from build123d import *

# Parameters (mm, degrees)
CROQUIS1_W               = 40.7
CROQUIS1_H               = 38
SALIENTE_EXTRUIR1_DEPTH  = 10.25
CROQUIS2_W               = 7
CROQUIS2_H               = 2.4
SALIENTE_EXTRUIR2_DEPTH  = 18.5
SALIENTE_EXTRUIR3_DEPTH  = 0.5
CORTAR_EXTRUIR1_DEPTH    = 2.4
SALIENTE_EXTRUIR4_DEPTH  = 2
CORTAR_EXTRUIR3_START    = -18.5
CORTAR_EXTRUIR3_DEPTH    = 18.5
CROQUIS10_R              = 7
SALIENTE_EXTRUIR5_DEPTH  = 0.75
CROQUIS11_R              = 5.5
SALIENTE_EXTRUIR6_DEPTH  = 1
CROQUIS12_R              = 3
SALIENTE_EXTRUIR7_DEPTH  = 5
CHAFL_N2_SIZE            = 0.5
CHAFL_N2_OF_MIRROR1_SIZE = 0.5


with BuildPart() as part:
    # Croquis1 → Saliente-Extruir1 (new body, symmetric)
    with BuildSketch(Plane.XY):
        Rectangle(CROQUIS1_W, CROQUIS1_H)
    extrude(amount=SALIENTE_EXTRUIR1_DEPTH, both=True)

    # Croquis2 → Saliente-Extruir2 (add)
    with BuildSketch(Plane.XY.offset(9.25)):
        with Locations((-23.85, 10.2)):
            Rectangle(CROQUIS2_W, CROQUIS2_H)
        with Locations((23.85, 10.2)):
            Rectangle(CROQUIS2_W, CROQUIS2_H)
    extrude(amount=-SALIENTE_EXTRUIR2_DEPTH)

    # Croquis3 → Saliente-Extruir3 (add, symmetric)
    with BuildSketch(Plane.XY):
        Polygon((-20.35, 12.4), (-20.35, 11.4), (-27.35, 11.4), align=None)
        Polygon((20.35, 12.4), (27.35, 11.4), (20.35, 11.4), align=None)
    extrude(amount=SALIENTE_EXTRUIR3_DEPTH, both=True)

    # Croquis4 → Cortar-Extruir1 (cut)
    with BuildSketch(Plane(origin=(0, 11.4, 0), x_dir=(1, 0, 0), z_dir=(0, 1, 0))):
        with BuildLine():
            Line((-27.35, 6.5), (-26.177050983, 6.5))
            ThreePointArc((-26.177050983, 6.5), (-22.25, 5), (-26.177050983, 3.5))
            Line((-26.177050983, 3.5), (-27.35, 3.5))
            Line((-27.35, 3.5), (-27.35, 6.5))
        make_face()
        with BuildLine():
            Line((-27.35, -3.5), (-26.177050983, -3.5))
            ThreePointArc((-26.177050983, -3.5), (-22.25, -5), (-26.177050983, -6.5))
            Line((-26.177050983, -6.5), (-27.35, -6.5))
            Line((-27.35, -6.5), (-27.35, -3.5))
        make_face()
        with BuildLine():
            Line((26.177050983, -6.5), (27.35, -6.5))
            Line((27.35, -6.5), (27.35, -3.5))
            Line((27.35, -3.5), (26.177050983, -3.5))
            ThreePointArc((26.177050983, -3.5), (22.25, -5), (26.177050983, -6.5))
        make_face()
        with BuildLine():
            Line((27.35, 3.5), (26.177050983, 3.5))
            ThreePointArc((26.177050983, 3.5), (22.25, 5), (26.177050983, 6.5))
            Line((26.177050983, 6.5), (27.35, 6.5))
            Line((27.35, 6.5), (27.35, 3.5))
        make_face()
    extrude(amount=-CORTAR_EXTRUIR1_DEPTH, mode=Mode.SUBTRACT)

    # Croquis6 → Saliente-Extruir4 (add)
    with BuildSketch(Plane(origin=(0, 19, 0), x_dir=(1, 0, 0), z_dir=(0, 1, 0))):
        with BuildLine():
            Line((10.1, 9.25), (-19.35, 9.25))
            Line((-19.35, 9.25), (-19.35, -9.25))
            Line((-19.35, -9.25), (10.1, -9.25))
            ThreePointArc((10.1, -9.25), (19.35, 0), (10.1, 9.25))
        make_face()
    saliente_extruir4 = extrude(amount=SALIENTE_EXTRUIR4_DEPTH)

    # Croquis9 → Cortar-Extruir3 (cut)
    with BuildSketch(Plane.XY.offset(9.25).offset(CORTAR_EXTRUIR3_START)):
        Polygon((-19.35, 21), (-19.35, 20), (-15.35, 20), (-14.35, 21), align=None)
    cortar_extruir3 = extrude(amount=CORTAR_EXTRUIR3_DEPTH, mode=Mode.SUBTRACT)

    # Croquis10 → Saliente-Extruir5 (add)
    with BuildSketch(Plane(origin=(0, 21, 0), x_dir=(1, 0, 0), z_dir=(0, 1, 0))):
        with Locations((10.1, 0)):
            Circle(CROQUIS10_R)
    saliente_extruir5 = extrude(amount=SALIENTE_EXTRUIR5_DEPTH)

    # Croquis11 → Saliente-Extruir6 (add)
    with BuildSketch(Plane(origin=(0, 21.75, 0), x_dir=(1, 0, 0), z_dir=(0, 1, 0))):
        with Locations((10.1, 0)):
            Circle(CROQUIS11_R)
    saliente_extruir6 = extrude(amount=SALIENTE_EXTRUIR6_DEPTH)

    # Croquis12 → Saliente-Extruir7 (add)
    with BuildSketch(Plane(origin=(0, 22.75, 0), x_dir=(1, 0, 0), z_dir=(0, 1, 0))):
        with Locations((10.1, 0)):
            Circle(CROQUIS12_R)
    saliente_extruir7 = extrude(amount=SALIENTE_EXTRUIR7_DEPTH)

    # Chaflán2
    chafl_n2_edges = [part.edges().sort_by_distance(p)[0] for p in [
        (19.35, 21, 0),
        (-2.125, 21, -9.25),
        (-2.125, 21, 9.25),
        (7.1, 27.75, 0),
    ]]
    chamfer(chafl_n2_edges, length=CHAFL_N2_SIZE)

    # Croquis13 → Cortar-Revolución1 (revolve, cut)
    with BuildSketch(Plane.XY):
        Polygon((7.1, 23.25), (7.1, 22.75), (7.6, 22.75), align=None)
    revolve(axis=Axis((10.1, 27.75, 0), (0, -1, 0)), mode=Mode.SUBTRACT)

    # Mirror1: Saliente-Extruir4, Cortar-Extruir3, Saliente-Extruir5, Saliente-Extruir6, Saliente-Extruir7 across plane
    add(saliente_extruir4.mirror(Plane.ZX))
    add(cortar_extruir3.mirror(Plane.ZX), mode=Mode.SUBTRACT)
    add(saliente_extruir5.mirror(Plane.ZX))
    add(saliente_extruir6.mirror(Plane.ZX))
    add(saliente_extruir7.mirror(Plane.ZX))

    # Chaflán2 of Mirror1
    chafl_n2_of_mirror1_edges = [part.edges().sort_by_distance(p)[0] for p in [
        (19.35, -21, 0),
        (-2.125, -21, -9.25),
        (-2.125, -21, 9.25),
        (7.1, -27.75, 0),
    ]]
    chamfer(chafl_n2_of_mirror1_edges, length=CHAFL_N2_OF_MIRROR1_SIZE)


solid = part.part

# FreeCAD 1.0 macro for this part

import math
import FreeCAD as App
import Part
import Sketcher

V = App.Vector


def edges_at(feature, points):
    """Names of the edges that pass closest to the given points."""
    edges = feature.Shape.Edges
    near = lambda p: min(range(len(edges)), key=lambda i: edges[i].distToShape(Part.Vertex(*p))[0])
    return sorted({f"Edge{near(p) + 1}" for p in points})

doc = App.newDocument("Part")
body = doc.addObject("PartDesign::Body", "Body")

# Sketch on XY plane
sketch1 = doc.addObject("Sketcher::SketchObject", "Sketch")
body.addObject(sketch1)
sketch1.AttachmentSupport = (doc.XY_Plane, [""])
sketch1.MapMode = "FlatFace"
sketch1.addGeometry([
    Part.LineSegment(V(-20, 19, 0), V(-20, -19, 0)),
    Part.LineSegment(V(-20, -19, 0), V(20, -19, 0)),
    Part.LineSegment(V(20, -19, 0), V(20, 19, 0)),
    Part.LineSegment(V(20, 19, 0), V(-20, 19, 0)),
], False)
sketch1.addConstraint([
    Sketcher.Constraint("Coincident", 0, 2, 1, 1),
    Sketcher.Constraint("Coincident", 1, 2, 2, 1),
    Sketcher.Constraint("Coincident", 2, 2, 3, 1),
    Sketcher.Constraint("Coincident", 3, 2, 0, 1),
    Sketcher.Constraint("Vertical", 0),
    Sketcher.Constraint("Horizontal", 1),
    Sketcher.Constraint("Vertical", 2),
    Sketcher.Constraint("Horizontal", 3),
    Sketcher.Constraint("Symmetric", 0, 2, 2, 2, -1, 1),
    Sketcher.Constraint("DistanceY", 0, 2, 0, 1, 38.0),
    Sketcher.Constraint("DistanceX", 1, 1, 1, 2, 40.7),
])
pad1 = doc.addObject("PartDesign::Pad", "Pad")
body.addObject(pad1)
pad1.Profile = sketch1
pad1.Length = 20.5
pad1.Midplane = True

# Sketch on XY plane
sketch2 = doc.addObject("Sketcher::SketchObject", "Sketch001")
body.addObject(sketch2)
sketch2.AttachmentSupport = (doc.XY_Plane, [""])
sketch2.MapMode = "FlatFace"
sketch2.AttachmentOffset = App.Placement(V(0, 0, 9.25), App.Rotation())
sketch2.addGeometry([
    Part.LineSegment(V(-27.4, 11.4, 0), V(-27.4, 9, 0)),  # 0
    Part.LineSegment(V(-27.4, 9, 0), V(-20.4, 9, 0)),  # 1
    Part.LineSegment(V(-20.4, 9, 0), V(-20.4, 11.4, 0)),  # 2
    Part.LineSegment(V(-20.4, 11.4, 0), V(-27.4, 11.4, 0)),  # 3
    Part.LineSegment(V(20.4, 11.4, 0), V(20.4, 9, 0)),  # 4
    Part.LineSegment(V(20.4, 9, 0), V(27.4, 9, 0)),  # 5
    Part.LineSegment(V(27.4, 9, 0), V(27.4, 11.4, 0)),  # 6
    Part.LineSegment(V(27.4, 11.4, 0), V(20.4, 11.4, 0)),  # 7
], False)
sketch2.addConstraint([
    Sketcher.Constraint("Coincident", 0, 2, 1, 1),
    Sketcher.Constraint("Coincident", 1, 2, 2, 1),
    Sketcher.Constraint("Coincident", 2, 2, 3, 1),
    Sketcher.Constraint("Coincident", 3, 2, 0, 1),
    Sketcher.Constraint("Coincident", 4, 2, 5, 1),
    Sketcher.Constraint("Coincident", 5, 2, 6, 1),
    Sketcher.Constraint("Coincident", 6, 2, 7, 1),
    Sketcher.Constraint("Coincident", 7, 2, 4, 1),
    Sketcher.Constraint("Vertical", 0),
    Sketcher.Constraint("Horizontal", 1),
    Sketcher.Constraint("Vertical", 2),
    Sketcher.Constraint("Horizontal", 3),
    Sketcher.Constraint("Vertical", 4),
    Sketcher.Constraint("Horizontal", 5),
    Sketcher.Constraint("Vertical", 6),
    Sketcher.Constraint("Horizontal", 7),
    Sketcher.Constraint("Symmetric", 1, 2, 4, 2, -2),
    Sketcher.Constraint("Symmetric", 3, 2, 6, 2, -2),
    Sketcher.Constraint("DistanceX", 1, 1, 1, 2, 7.0),
    Sketcher.Constraint("DistanceY", 0, 2, 0, 1, 2.4),
    Sketcher.Constraint("DistanceY", -1, 1, 0, 2, 9.0),
    Sketcher.Constraint("DistanceX", 1, 2, 4, 2, 40.7),
])
pad2 = doc.addObject("PartDesign::Pad", "Pad001")
body.addObject(pad2)
pad2.Profile = sketch2
pad2.Length = 18.5
pad2.Reversed = True

# Sketch on XY plane
sketch3 = doc.addObject("Sketcher::SketchObject", "Sketch002")
body.addObject(sketch3)
sketch3.AttachmentSupport = (doc.XY_Plane, [""])
sketch3.MapMode = "FlatFace"
sketch3.addGeometry([
    Part.LineSegment(V(-20.4, 11.4, 0), V(-20.4, 12.4, 0)),  # 0
    Part.LineSegment(V(-20.4, 12.4, 0), V(-27.4, 11.4, 0)),  # 1
    Part.LineSegment(V(-27.4, 11.4, 0), V(-20.4, 11.4, 0)),  # 2
    Part.LineSegment(V(27.4, 11.4, 0), V(20.4, 12.4, 0)),  # 3
    Part.LineSegment(V(20.4, 12.4, 0), V(20.4, 11.4, 0)),  # 4
    Part.LineSegment(V(20.4, 11.4, 0), V(27.4, 11.4, 0)),  # 5
], False)
sketch3.addConstraint([
    Sketcher.Constraint("Coincident", 0, 2, 1, 1),
    Sketcher.Constraint("Coincident", 1, 2, 2, 1),
    Sketcher.Constraint("Coincident", 2, 2, 0, 1),
    Sketcher.Constraint("Coincident", 3, 2, 4, 1),
    Sketcher.Constraint("Coincident", 4, 2, 5, 1),
    Sketcher.Constraint("Coincident", 5, 2, 3, 1),
    Sketcher.Constraint("Vertical", 0),
    Sketcher.Constraint("Horizontal", 2),
    Sketcher.Constraint("Vertical", 4),
    Sketcher.Constraint("Horizontal", 5),
    Sketcher.Constraint("Symmetric", 0, 2, 3, 2, -2),
    Sketcher.Constraint("Symmetric", 1, 2, 5, 2, -2),
    Sketcher.Constraint("DistanceX", 2, 1, 2, 2, 7.0),
    Sketcher.Constraint("DistanceY", 0, 1, 0, 2, 1.0),
    Sketcher.Constraint("DistanceY", -1, 1, 0, 2, 12.4),
    Sketcher.Constraint("DistanceX", 0, 2, 3, 2, 40.7),
])
pad3 = doc.addObject("PartDesign::Pad", "Pad002")
body.addObject(pad3)
pad3.Profile = sketch3
pad3.Length = 1
pad3.Midplane = True

# Sketch on XZ plane
sketch4 = doc.addObject("Sketcher::SketchObject", "Sketch003")
body.addObject(sketch4)
sketch4.AttachmentSupport = (doc.XZ_Plane, [""])
sketch4.MapMode = "FlatFace"
sketch4.AttachmentOffset = App.Placement(V(0, 0, -11.4), App.Rotation())
sketch4.addGeometry([
    Part.LineSegment(V(-26.2, -6.5, 0), V(-27.4, -6.5, 0)),  # 0
    Part.LineSegment(V(-27.4, -6.5, 0), V(-27.4, -3.5, 0)),  # 1
    Part.LineSegment(V(-27.4, -3.5, 0), V(-26.2, -3.5, 0)),  # 2
    Part.ArcOfCircle(Part.Circle(V(-24.5, -5, 0), V(0, 0, 1), 2.2), math.radians(-138), math.radians(138)),  # 3
    Part.LineSegment(V(-26.2, 3.5, 0), V(-27.4, 3.5, 0)),  # 4
    Part.LineSegment(V(-27.4, 3.5, 0), V(-27.4, 6.5, 0)),  # 5
    Part.LineSegment(V(-27.4, 6.5, 0), V(-26.2, 6.5, 0)),  # 6
    Part.ArcOfCircle(Part.Circle(V(-24.5, 5, 0), V(0, 0, 1), 2.2), math.radians(-138), math.radians(138)),  # 7
    Part.LineSegment(V(26.2, 6.5, 0), V(27.4, 6.5, 0)),  # 8
    Part.LineSegment(V(27.4, 6.5, 0), V(27.4, 3.5, 0)),  # 9
    Part.LineSegment(V(27.4, 3.5, 0), V(26.2, 3.5, 0)),  # 10
    Part.ArcOfCircle(Part.Circle(V(24.5, 5, 0), V(0, 0, 1), 2.2), math.radians(42), math.radians(318)),  # 11
    Part.LineSegment(V(26.2, -3.5, 0), V(27.4, -3.5, 0)),  # 12
    Part.LineSegment(V(27.4, -3.5, 0), V(27.4, -6.5, 0)),  # 13
    Part.LineSegment(V(27.4, -6.5, 0), V(26.2, -6.5, 0)),  # 14
    Part.ArcOfCircle(Part.Circle(V(24.5, -5, 0), V(0, 0, 1), 2.2), math.radians(42), math.radians(318)),  # 15
], False)
sketch4.addConstraint([
    Sketcher.Constraint("Coincident", 0, 2, 1, 1),
    Sketcher.Constraint("Coincident", 1, 2, 2, 1),
    Sketcher.Constraint("Coincident", 2, 2, 3, 2),
    Sketcher.Constraint("Coincident", 3, 1, 0, 1),
    Sketcher.Constraint("Coincident", 4, 2, 5, 1),
    Sketcher.Constraint("Coincident", 5, 2, 6, 1),
    Sketcher.Constraint("Coincident", 6, 2, 7, 2),
    Sketcher.Constraint("Coincident", 7, 1, 4, 1),
    Sketcher.Constraint("Coincident", 8, 2, 9, 1),
    Sketcher.Constraint("Coincident", 9, 2, 10, 1),
    Sketcher.Constraint("Coincident", 10, 2, 11, 2),
    Sketcher.Constraint("Coincident", 11, 1, 8, 1),
    Sketcher.Constraint("Coincident", 12, 2, 13, 1),
    Sketcher.Constraint("Coincident", 13, 2, 14, 1),
    Sketcher.Constraint("Coincident", 14, 2, 15, 2),
    Sketcher.Constraint("Coincident", 15, 1, 12, 1),
    Sketcher.Constraint("Horizontal", 0),
    Sketcher.Constraint("Vertical", 1),
    Sketcher.Constraint("Horizontal", 2),
    Sketcher.Constraint("Horizontal", 4),
    Sketcher.Constraint("Vertical", 5),
    Sketcher.Constraint("Horizontal", 6),
    Sketcher.Constraint("Horizontal", 8),
    Sketcher.Constraint("Vertical", 9),
    Sketcher.Constraint("Horizontal", 10),
    Sketcher.Constraint("Horizontal", 12),
    Sketcher.Constraint("Vertical", 13),
    Sketcher.Constraint("Horizontal", 14),
    Sketcher.Constraint("Equal", 3, 7),
    Sketcher.Constraint("Equal", 7, 11),
    Sketcher.Constraint("Equal", 11, 15),
    Sketcher.Constraint("Symmetric", 3, 3, 11, 3, -1, 1),
    Sketcher.Constraint("Symmetric", 7, 3, 15, 3, -1, 1),
    Sketcher.Constraint("Symmetric", 0, 2, 8, 2, -1, 1),
    Sketcher.Constraint("Symmetric", 4, 2, 12, 2, -1, 1),
    Sketcher.Constraint("Symmetric", 7, 3, 11, 3, -2),
    Sketcher.Constraint("Symmetric", 5, 2, 8, 2, -2),
    Sketcher.Constraint("Horizontal", 7, 1, 9, 2),
    Sketcher.Constraint("Horizontal", 2, 2, 12, 2),
    Sketcher.Constraint("Horizontal", 3, 1, 13, 2),
    Sketcher.Constraint("Vertical", 2, 2, 3, 1),
    Sketcher.Constraint("DistanceY", 1, 1, 1, 2, 3.0),
    Sketcher.Constraint("Radius", 3, 2.25),
    Sketcher.Constraint("DistanceY", 3, 3, -1, 1, 5.0),
    Sketcher.Constraint("DistanceX", 7, 3, 11, 3, 49.0),
    Sketcher.Constraint("DistanceX", 0, 2, -1, 1, 27.35),
])
pocket1 = doc.addObject("PartDesign::Pocket", "Pocket")
body.addObject(pocket1)
pocket1.Profile = sketch4
pocket1.Length = 2.4
pocket1.Reversed = True

# Sketch on XZ plane
sketch5 = doc.addObject("Sketcher::SketchObject", "Sketch004")
body.addObject(sketch5)
sketch5.AttachmentSupport = (doc.XZ_Plane, [""])
sketch5.MapMode = "FlatFace"
sketch5.AttachmentOffset = App.Placement(V(0, 0, -19), App.Rotation())
sketch5.addGeometry([
    Part.LineSegment(V(10, -9, 0), V(-19, -9, 0)),
    Part.LineSegment(V(-19, -9, 0), V(-19, 9, 0)),
    Part.LineSegment(V(-19, 9, 0), V(10, 9, 0)),
    Part.ArcOfCircle(Part.Circle(V(10, 0, 0), V(0, 0, 1), 9), math.radians(-90), math.radians(90)),
], False)
sketch5.addConstraint([
    Sketcher.Constraint("Coincident", 0, 2, 1, 1),
    Sketcher.Constraint("Coincident", 1, 2, 2, 1),
    Sketcher.Constraint("Tangent", 2, 2, 3, 2),
    Sketcher.Constraint("Tangent", 3, 1, 0, 1),
    Sketcher.Constraint("Horizontal", 0),
    Sketcher.Constraint("Vertical", 1),
    Sketcher.Constraint("Horizontal", 2),
    Sketcher.Constraint("PointOnObject", 3, 3, -1),
    Sketcher.Constraint("Radius", 3, 9.25),
    Sketcher.Constraint("DistanceX", 0, 2, 0, 1, 29.45),
    Sketcher.Constraint("DistanceX", -1, 1, 3, 3, 10.1),
])
pad4 = doc.addObject("PartDesign::Pad", "Pad003")
body.addObject(pad4)
pad4.Profile = sketch5
pad4.Length = 2
pad4.Reversed = True

# Sketch on XY plane
sketch6 = doc.addObject("Sketcher::SketchObject", "Sketch005")
body.addObject(sketch6)
sketch6.AttachmentSupport = (doc.XY_Plane, [""])
sketch6.MapMode = "FlatFace"
sketch6.AttachmentOffset = App.Placement(V(0, 0, -9.25), App.Rotation())
sketch6.addGeometry([
    Part.LineSegment(V(-19.4, 21, 0), V(-19.4, 20, 0)),
    Part.LineSegment(V(-19.4, 20, 0), V(-15.3, 20, 0)),
    Part.LineSegment(V(-15.3, 20, 0), V(-14.3, 21, 0)),
    Part.LineSegment(V(-14.3, 21, 0), V(-19.4, 21, 0)),
], False)
sketch6.addConstraint([
    Sketcher.Constraint("Coincident", 0, 2, 1, 1),
    Sketcher.Constraint("Coincident", 1, 2, 2, 1),
    Sketcher.Constraint("Coincident", 2, 2, 3, 1),
    Sketcher.Constraint("Coincident", 3, 2, 0, 1),
    Sketcher.Constraint("Vertical", 0),
    Sketcher.Constraint("Horizontal", 1),
    Sketcher.Constraint("Horizontal", 3),
    Sketcher.Constraint("DistanceX", 1, 1, 1, 2, 4.0),
    Sketcher.Constraint("DistanceX", 3, 2, 3, 1, 5.0),
    Sketcher.Constraint("DistanceY", 0, 2, 0, 1, 1.0),
    Sketcher.Constraint("DistanceY", -1, 1, 0, 2, 20.0),
    Sketcher.Constraint("DistanceX", 0, 2, -1, 1, 19.35),
])
pocket2 = doc.addObject("PartDesign::Pocket", "Pocket001")
body.addObject(pocket2)
pocket2.Profile = sketch6
pocket2.Length = 18.5
pocket2.Reversed = True

# Sketch on XZ plane
sketch7 = doc.addObject("Sketcher::SketchObject", "Sketch006")
body.addObject(sketch7)
sketch7.AttachmentSupport = (doc.XZ_Plane, [""])
sketch7.MapMode = "FlatFace"
sketch7.AttachmentOffset = App.Placement(V(0, 0, -21), App.Rotation())
sketch7.addGeometry(Part.Circle(V(10, 0, 0), V(0, 0, 1), 7), False)
sketch7.addConstraint([
    Sketcher.Constraint("PointOnObject", 0, 3, -1),
    Sketcher.Constraint("Diameter", 0, 14.0),
    Sketcher.Constraint("DistanceX", -1, 1, 0, 3, 10.1),
])
pad5 = doc.addObject("PartDesign::Pad", "Pad004")
body.addObject(pad5)
pad5.Profile = sketch7
pad5.Length = 0.75
pad5.Reversed = True

# Sketch on XZ plane
sketch8 = doc.addObject("Sketcher::SketchObject", "Sketch007")
body.addObject(sketch8)
sketch8.AttachmentSupport = (doc.XZ_Plane, [""])
sketch8.MapMode = "FlatFace"
sketch8.AttachmentOffset = App.Placement(V(0, 0, -21.75), App.Rotation())
sketch8.addGeometry(Part.Circle(V(10, 0, 0), V(0, 0, 1), 6), False)
sketch8.addConstraint([
    Sketcher.Constraint("PointOnObject", 0, 3, -1),
    Sketcher.Constraint("Diameter", 0, 11.0),
    Sketcher.Constraint("DistanceX", -1, 1, 0, 3, 10.1),
])
pad6 = doc.addObject("PartDesign::Pad", "Pad005")
body.addObject(pad6)
pad6.Profile = sketch8
pad6.Length = 1
pad6.Reversed = True

# Sketch on XZ plane
sketch9 = doc.addObject("Sketcher::SketchObject", "Sketch008")
body.addObject(sketch9)
sketch9.AttachmentSupport = (doc.XZ_Plane, [""])
sketch9.MapMode = "FlatFace"
sketch9.AttachmentOffset = App.Placement(V(0, 0, -22.75), App.Rotation())
sketch9.addGeometry(Part.Circle(V(10.1, 0, 0), V(0, 0, 1), 3), False)
sketch9.addConstraint([
    Sketcher.Constraint("PointOnObject", 0, 3, -1),
    Sketcher.Constraint("Diameter", 0, 6.0),
    Sketcher.Constraint("DistanceX", -1, 1, 0, 3, 10.1),
])
pad7 = doc.addObject("PartDesign::Pad", "Pad006")
body.addObject(pad7)
pad7.Profile = sketch9
pad7.Length = 5
pad7.Reversed = True
doc.recompute()

chamfer = doc.addObject("PartDesign::Chamfer", "Chamfer")
body.addObject(chamfer)
chamfer.Base = (pad7, edges_at(pad7, [
    (19.35, 21, 0),
    (-2.125, 21, -9.25),
    (-2.125, 21, 9.25),
    (7.1, 27.75, 0),
]))
chamfer.Size = 0.5

# Sketch on XY plane
sketch10 = doc.addObject("Sketcher::SketchObject", "Sketch009")
body.addObject(sketch10)
sketch10.AttachmentSupport = (doc.XY_Plane, [""])
sketch10.MapMode = "FlatFace"
sketch10.addGeometry([
    Part.LineSegment(V(7.1, 23.2, 0), V(7.1, 22.8, 0)),
    Part.LineSegment(V(7.1, 22.8, 0), V(7.6, 22.8, 0)),
    Part.LineSegment(V(7.6, 22.8, 0), V(7.1, 23.2, 0)),
], False)
sketch10.addGeometry(Part.LineSegment(V(10.1, 23.2, 0), V(10.1, 22.8, 0)), True)  # axis
sketch10.addConstraint([
    Sketcher.Constraint("Coincident", 0, 2, 1, 1),
    Sketcher.Constraint("Coincident", 1, 2, 2, 1),
    Sketcher.Constraint("Coincident", 2, 2, 0, 1),
    Sketcher.Constraint("Vertical", 0),
    Sketcher.Constraint("Horizontal", 1),
    Sketcher.Constraint("Vertical", 3),
    Sketcher.Constraint("Horizontal", 2, 2, 3, 1),
    Sketcher.Constraint("Horizontal", 1, 2, 3, 2),
    Sketcher.Constraint("Equal", 1, 0),
    Sketcher.Constraint("DistanceX", 1, 1, 1, 2, 0.5),
    Sketcher.Constraint("DistanceX", 2, 2, 3, 1, 3.0),
    Sketcher.Constraint("DistanceX", -1, 1, 0, 2, 7.1),
    Sketcher.Constraint("DistanceY", -1, 1, 0, 2, 22.75),
])
groove = doc.addObject("PartDesign::Groove", "Groove")
body.addObject(groove)
groove.Profile = sketch10
groove.ReferenceAxis = (sketch10, ["Axis0"])
groove.Angle = 360
doc.recompute()

mirrored = doc.addObject("PartDesign::Mirrored", "Mirrored")
body.addObject(mirrored)
mirrored.Originals = [pad4, pocket2, pad5, pad6, pad7]
mirrored.MirrorPlane = (doc.XZ_Plane, [""])
body.Tip = mirrored
doc.recompute()

chamfer2 = doc.addObject("PartDesign::Chamfer", "Chamfer001")
body.addObject(chamfer2)
chamfer2.Base = (mirrored, edges_at(mirrored, [
    (19.35, -21, 0),
    (-2.125, -21, -9.25),
    (-2.125, -21, 9.25),
    (7.1, -27.75, 0),
]))
chamfer2.Size = 0.5

doc.recompute()
